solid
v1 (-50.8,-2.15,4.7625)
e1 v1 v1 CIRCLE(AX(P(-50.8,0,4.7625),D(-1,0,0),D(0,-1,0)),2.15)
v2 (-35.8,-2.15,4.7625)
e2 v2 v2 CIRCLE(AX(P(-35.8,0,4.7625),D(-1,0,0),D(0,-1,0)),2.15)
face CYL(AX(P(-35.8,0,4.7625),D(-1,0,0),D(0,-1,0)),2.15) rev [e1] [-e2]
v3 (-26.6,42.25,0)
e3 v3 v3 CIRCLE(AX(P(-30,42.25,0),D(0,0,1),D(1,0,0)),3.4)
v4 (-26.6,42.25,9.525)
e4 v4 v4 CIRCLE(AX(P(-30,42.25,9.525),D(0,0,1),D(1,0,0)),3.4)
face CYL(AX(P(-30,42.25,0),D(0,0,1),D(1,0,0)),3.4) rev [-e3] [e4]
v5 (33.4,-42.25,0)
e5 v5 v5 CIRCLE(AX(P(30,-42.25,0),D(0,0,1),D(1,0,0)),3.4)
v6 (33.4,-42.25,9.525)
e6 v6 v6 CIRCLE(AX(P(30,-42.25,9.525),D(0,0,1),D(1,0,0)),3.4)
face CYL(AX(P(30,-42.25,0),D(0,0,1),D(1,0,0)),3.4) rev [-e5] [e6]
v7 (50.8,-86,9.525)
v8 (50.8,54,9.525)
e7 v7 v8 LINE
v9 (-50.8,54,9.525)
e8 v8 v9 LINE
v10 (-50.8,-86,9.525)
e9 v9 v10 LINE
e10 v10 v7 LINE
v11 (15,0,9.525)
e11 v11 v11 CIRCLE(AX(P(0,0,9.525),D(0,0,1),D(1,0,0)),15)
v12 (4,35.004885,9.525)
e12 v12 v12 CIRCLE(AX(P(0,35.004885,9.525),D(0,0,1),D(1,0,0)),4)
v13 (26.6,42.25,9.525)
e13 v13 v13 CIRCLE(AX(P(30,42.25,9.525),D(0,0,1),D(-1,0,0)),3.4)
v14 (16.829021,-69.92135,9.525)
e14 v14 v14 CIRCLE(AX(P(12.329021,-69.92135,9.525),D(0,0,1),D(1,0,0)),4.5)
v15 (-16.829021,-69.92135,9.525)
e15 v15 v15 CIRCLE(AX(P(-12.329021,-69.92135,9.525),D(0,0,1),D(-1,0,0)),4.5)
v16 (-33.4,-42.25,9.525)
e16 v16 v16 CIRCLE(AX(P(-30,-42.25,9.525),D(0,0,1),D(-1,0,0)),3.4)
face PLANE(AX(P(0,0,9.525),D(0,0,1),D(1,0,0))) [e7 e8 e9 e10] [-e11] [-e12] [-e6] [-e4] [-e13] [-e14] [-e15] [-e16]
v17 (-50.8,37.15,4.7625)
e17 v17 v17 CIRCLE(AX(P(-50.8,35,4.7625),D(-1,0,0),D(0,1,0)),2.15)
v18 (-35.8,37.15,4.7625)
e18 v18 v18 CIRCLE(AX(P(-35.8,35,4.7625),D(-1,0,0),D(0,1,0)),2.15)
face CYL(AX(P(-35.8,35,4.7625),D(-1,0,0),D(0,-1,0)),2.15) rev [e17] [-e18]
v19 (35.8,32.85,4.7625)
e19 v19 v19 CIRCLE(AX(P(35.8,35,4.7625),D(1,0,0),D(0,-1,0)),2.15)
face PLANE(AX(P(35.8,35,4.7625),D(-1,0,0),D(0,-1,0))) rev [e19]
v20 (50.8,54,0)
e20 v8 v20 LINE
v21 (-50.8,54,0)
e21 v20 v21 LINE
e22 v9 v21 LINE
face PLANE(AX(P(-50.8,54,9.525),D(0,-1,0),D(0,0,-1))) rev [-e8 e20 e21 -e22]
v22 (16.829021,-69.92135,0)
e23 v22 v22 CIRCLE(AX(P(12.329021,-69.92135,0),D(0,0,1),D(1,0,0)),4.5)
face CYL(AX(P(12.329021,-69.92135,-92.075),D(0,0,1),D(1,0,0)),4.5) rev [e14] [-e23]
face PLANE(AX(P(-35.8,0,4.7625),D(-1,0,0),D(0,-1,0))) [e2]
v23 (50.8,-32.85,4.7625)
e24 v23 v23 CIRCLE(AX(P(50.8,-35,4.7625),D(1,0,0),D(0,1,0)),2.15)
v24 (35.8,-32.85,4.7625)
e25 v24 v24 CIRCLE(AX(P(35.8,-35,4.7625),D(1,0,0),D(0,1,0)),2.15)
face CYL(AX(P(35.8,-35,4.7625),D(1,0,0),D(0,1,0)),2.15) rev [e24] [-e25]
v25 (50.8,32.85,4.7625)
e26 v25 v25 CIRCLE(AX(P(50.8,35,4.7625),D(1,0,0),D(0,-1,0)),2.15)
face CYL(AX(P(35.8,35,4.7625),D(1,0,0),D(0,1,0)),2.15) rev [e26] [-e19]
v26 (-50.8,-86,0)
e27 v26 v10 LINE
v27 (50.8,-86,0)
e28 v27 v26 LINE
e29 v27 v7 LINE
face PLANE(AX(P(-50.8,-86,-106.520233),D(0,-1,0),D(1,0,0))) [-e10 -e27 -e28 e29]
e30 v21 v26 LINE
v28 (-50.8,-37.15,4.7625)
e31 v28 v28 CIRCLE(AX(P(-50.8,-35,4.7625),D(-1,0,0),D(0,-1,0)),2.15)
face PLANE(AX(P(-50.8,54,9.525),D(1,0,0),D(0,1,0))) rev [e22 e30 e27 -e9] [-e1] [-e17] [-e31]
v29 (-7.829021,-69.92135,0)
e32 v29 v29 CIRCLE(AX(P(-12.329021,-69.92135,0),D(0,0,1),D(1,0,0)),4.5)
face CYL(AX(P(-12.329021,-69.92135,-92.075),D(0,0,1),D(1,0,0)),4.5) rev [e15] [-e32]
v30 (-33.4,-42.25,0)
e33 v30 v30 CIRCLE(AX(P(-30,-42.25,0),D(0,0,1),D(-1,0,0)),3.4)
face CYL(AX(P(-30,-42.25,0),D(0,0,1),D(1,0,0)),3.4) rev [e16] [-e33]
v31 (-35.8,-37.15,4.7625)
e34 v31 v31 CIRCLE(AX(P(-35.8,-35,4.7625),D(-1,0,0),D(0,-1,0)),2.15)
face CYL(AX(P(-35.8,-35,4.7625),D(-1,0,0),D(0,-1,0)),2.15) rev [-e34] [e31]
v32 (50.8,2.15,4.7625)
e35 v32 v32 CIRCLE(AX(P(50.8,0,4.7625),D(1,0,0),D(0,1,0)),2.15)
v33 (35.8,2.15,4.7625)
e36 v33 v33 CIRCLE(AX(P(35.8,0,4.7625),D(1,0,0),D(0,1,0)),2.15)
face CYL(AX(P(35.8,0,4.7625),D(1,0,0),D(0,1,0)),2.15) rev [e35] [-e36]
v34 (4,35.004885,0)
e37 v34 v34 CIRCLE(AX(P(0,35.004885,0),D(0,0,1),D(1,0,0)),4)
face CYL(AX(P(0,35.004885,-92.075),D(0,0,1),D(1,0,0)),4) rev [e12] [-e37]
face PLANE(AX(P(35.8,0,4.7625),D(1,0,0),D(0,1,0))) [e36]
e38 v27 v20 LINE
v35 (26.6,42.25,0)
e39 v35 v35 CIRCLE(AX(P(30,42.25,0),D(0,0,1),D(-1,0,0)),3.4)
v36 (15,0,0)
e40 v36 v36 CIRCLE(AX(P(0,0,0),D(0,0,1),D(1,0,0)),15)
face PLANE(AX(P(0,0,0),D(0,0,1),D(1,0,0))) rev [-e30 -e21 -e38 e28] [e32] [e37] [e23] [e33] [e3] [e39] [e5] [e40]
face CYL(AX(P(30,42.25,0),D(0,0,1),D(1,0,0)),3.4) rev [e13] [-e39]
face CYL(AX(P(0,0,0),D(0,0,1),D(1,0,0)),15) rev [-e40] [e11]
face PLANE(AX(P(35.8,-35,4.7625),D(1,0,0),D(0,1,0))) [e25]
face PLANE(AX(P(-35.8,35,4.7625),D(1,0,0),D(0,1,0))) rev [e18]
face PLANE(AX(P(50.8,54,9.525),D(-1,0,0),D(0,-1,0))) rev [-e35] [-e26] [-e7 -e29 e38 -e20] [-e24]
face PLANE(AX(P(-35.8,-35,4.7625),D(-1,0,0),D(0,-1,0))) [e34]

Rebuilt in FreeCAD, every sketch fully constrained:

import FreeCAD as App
import Part
import Sketcher


def add_polygon(sketch, points):
    """Adds a closed chain of lines whose ends are joined by coincident constraints."""
    first, n = sketch.GeometryCount, len(points)
    for a, b in zip(points, points[1:] + points[:1]):
        sketch.addGeometry(Part.LineSegment(App.Vector(*a, 0), App.Vector(*b, 0)), False)
    for i in range(n):
        sketch.addConstraint(Sketcher.Constraint("Coincident", first + i, 2, first + (i + 1) % n, 1))

doc = App.newDocument("Part")
params = doc.addObject("Spreadsheet::Sheet", "Params")
for row, (alias, value) in enumerate([
    ("sketch1_height", "108 mm"),
    ("sketch1_width", "101.6 mm"),
    ("pad1_length", "9.525 mm"),
    ("sketch2_diameter", "30 mm"),
    ("sketch2_diameter2", "6.8 mm"),
    ("sketch3_diameter", "4.3 mm"),
    ("pocket2_length", "15 mm"),
    ("sketch4_diameter", "4.3 mm"),
    ("pocket3_length", "15 mm"),
    ("sketch5_height", "32 mm"),
    ("sketch5_width", "101.6 mm"),
    ("pad2_length", "9.525 mm"),
    ("sketch6_diameter", "9 mm"),
    ("sketch6_diameter2", "8 mm"),
    ("pocket4_length", "101.6 mm"),
], start=1):
    params.set(f"A{row}", alias)
    params.set(f"B{row}", "=" + value)
    params.setAlias(f"B{row}", alias)

body = doc.addObject("PartDesign::Body", "Body")

sketch1 = body.newObject("Sketcher::SketchObject", "Sketch")
sketch1.AttachmentSupport = (doc.getObject("XY_Plane"), [""])
sketch1.MapMode = "FlatFace"
add_polygon(sketch1, [(-51, 54), (-51, -54), (51, -54), (51, 54)])
sketch1.addConstraint([
    Sketcher.Constraint("Vertical", 0),
    Sketcher.Constraint("Horizontal", 1),
    Sketcher.Constraint("Vertical", 2),
    Sketcher.Constraint("Horizontal", 3),
    Sketcher.Constraint("Symmetric", 0, 2, 2, 2, -1, 1),
    Sketcher.Constraint("DistanceY", 0, 2, 0, 1, 108.0),
    Sketcher.Constraint("DistanceX", 1, 1, 1, 2, 101.6),
])
sketch1.setExpression("Constraints[9]", "Params.sketch1_height")
sketch1.setExpression("Constraints[10]", "Params.sketch1_width")
pad1 = body.newObject("PartDesign::Pad", "Pad")
pad1.Profile = sketch1
pad1.setExpression("Length", "Params.pad1_length")

sketch2 = body.newObject("Sketcher::SketchObject", "Sketch001")
sketch2.AttachmentSupport = (doc.getObject("XY_Plane"), [""])
sketch2.MapMode = "FlatFace"
sketch2.AttachmentOffset = App.Placement(App.Vector(0, 0, 9.525), App.Rotation())
sketch2.addGeometry([
    Part.Circle(App.Vector(0, 0, 0), App.Vector(0, 0, 1), 15),
    Part.Circle(App.Vector(30, -42.2, 0), App.Vector(0, 0, 1), 3.4),
    Part.Circle(App.Vector(-30, -42.2, 0), App.Vector(0, 0, 1), 3.4),
    Part.Circle(App.Vector(30, 42.2, 0), App.Vector(0, 0, 1), 3.4),
    Part.Circle(App.Vector(-30, 42.2, 0), App.Vector(0, 0, 1), 3.4),
], False)
sketch2.addConstraint([
    Sketcher.Constraint("Coincident", 0, 3, -1, 1),
    Sketcher.Constraint("Equal", 1, 2),
    Sketcher.Constraint("Equal", 2, 3),
    Sketcher.Constraint("Equal", 3, 4),
    Sketcher.Constraint("Symmetric", 2, 3, 3, 3, -1, 1),
    Sketcher.Constraint("Symmetric", 1, 3, 4, 3, -1, 1),
    Sketcher.Constraint("Symmetric", 1, 3, 2, 3, -2),
    Sketcher.Constraint("Diameter", 0, 30.0),
    Sketcher.Constraint("Diameter", 1, 6.8),
    Sketcher.Constraint("DistanceX", -1, 1, 1, 3, 30.0),
    Sketcher.Constraint("DistanceY", 1, 3, 3, 3, 84.5),
])
sketch2.setExpression("Constraints[7]", "Params.sketch2_diameter")
sketch2.setExpression("Constraints[8]", "Params.sketch2_diameter2")
pocket1 = body.newObject("PartDesign::Pocket", "Pocket")
pocket1.Profile = sketch2
pocket1.Type = "ThroughAll"

sketch3 = body.newObject("Sketcher::SketchObject", "Sketch002")
sketch3.AttachmentSupport = (doc.getObject("YZ_Plane"), [""])
sketch3.MapMode = "FlatFace"
sketch3.AttachmentOffset = App.Placement(App.Vector(0, 0, -50.8), App.Rotation())
sketch3.addGeometry([
    Part.Circle(App.Vector(0, 4.8, 0), App.Vector(0, 0, 1), 2.1),
    Part.Circle(App.Vector(-35, 4.8, 0), App.Vector(0, 0, 1), 2.1),
    Part.Circle(App.Vector(35, 4.8, 0), App.Vector(0, 0, 1), 2.1),
], False)
sketch3.addConstraint([
    Sketcher.Constraint("Equal", 0, 1),
    Sketcher.Constraint("Equal", 1, 2),
    Sketcher.Constraint("Symmetric", 1, 3, 2, 3, -2),
    Sketcher.Constraint("PointOnObject", 0, 3, -2),
    Sketcher.Constraint("Horizontal", 0, 3, 1, 3),
    Sketcher.Constraint("Diameter", 0, 4.3),
    Sketcher.Constraint("DistanceX", 1, 3, -1, 1, 35.0),
    Sketcher.Constraint("DistanceY", -1, 1, 0, 3, 4.7625),
])
sketch3.setExpression("Constraints[5]", "Params.sketch3_diameter")
pocket2 = body.newObject("PartDesign::Pocket", "Pocket001")
pocket2.Profile = sketch3
pocket2.setExpression("Length", "Params.pocket2_length")
pocket2.Reversed = True

sketch4 = body.newObject("Sketcher::SketchObject", "Sketch003")
sketch4.AttachmentSupport = (doc.getObject("YZ_Plane"), [""])
sketch4.MapMode = "FlatFace"
sketch4.AttachmentOffset = App.Placement(App.Vector(0, 0, 50.8), App.Rotation())
sketch4.addGeometry([
    Part.Circle(App.Vector(0, 4.8, 0), App.Vector(0, 0, 1), 2.1),
    Part.Circle(App.Vector(-35, 4.8, 0), App.Vector(0, 0, 1), 2.1),
    Part.Circle(App.Vector(35, 4.8, 0), App.Vector(0, 0, 1), 2.1),
], False)
sketch4.addConstraint([
    Sketcher.Constraint("Equal", 0, 1),
    Sketcher.Constraint("Equal", 1, 2),
    Sketcher.Constraint("Symmetric", 1, 3, 2, 3, -2),
    Sketcher.Constraint("PointOnObject", 0, 3, -2),
    Sketcher.Constraint("Horizontal", 0, 3, 1, 3),
    Sketcher.Constraint("Diameter", 0, 4.3),
    Sketcher.Constraint("DistanceX", 1, 3, -1, 1, 35.0),
    Sketcher.Constraint("DistanceY", -1, 1, 0, 3, 4.7625),
])
sketch4.setExpression("Constraints[5]", "Params.sketch4_diameter")
pocket3 = body.newObject("PartDesign::Pocket", "Pocket002")
pocket3.Profile = sketch4
pocket3.setExpression("Length", "Params.pocket3_length")

sketch5 = body.newObject("Sketcher::SketchObject", "Sketch004")
sketch5.AttachmentSupport = (doc.getObject("XY_Plane"), [""])
sketch5.MapMode = "FlatFace"
sketch5.AttachmentOffset = App.Placement(App.Vector(0, 0, 9.525), App.Rotation())
add_polygon(sketch5, [(-51, -54), (-51, -86), (51, -86), (51, -54)])
sketch5.addConstraint([
    Sketcher.Constraint("Vertical", 0),
    Sketcher.Constraint("Horizontal", 1),
    Sketcher.Constraint("Vertical", 2),
    Sketcher.Constraint("Horizontal", 3),
    Sketcher.Constraint("DistanceY", 0, 2, 0, 1, 32.0),
    Sketcher.Constraint("DistanceX", 1, 1, 1, 2, 101.6),
    Sketcher.Constraint("DistanceY", 0, 2, -1, 1, 86.0),
    Sketcher.Constraint("DistanceX", 0, 2, -1, 1, 50.8),
])
sketch5.setExpression("Constraints[8]", "Params.sketch5_height")
sketch5.setExpression("Constraints[9]", "Params.sketch5_width")
pad2 = body.newObject("PartDesign::Pad", "Pad001")
pad2.Profile = sketch5
pad2.setExpression("Length", "Params.pad2_length")
pad2.Reversed = True

sketch6 = body.newObject("Sketcher::SketchObject", "Sketch005")
sketch6.AttachmentSupport = (doc.getObject("XY_Plane"), [""])
sketch6.MapMode = "FlatFace"
sketch6.AttachmentOffset = App.Placement(App.Vector(0, 0, 9.525), App.Rotation())
sketch6.addGeometry([
    Part.Circle(App.Vector(12.3, -69.9, 0), App.Vector(0, 0, 1), 4.5),
    Part.Circle(App.Vector(-12.3, -69.9, 0), App.Vector(0, 0, 1), 4.5),
    Part.Circle(App.Vector(0, 35, 0), App.Vector(0, 0, 1), 4),
], False)
sketch6.addConstraint([
    Sketcher.Constraint("Equal", 0, 1),
    Sketcher.Constraint("Symmetric", 0, 3, 1, 3, -2),
    Sketcher.Constraint("PointOnObject", 2, 3, -2),
    Sketcher.Constraint("Diameter", 0, 9.0),
    Sketcher.Constraint("Diameter", 2, 8.0),
    Sketcher.Constraint("DistanceX", -1, 1, 0, 3, 12.329021),
    Sketcher.Constraint("DistanceY", 0, 3, -1, 1, 69.92135),
    Sketcher.Constraint("DistanceY", -1, 1, 2, 3, 35.004885),
])
sketch6.setExpression("Constraints[3]", "Params.sketch6_diameter")
sketch6.setExpression("Constraints[4]", "Params.sketch6_diameter2")
pocket4 = body.newObject("PartDesign::Pocket", "Pocket003")
pocket4.Profile = sketch6
pocket4.setExpression("Length", "Params.pocket4_length")

doc.recompute()
